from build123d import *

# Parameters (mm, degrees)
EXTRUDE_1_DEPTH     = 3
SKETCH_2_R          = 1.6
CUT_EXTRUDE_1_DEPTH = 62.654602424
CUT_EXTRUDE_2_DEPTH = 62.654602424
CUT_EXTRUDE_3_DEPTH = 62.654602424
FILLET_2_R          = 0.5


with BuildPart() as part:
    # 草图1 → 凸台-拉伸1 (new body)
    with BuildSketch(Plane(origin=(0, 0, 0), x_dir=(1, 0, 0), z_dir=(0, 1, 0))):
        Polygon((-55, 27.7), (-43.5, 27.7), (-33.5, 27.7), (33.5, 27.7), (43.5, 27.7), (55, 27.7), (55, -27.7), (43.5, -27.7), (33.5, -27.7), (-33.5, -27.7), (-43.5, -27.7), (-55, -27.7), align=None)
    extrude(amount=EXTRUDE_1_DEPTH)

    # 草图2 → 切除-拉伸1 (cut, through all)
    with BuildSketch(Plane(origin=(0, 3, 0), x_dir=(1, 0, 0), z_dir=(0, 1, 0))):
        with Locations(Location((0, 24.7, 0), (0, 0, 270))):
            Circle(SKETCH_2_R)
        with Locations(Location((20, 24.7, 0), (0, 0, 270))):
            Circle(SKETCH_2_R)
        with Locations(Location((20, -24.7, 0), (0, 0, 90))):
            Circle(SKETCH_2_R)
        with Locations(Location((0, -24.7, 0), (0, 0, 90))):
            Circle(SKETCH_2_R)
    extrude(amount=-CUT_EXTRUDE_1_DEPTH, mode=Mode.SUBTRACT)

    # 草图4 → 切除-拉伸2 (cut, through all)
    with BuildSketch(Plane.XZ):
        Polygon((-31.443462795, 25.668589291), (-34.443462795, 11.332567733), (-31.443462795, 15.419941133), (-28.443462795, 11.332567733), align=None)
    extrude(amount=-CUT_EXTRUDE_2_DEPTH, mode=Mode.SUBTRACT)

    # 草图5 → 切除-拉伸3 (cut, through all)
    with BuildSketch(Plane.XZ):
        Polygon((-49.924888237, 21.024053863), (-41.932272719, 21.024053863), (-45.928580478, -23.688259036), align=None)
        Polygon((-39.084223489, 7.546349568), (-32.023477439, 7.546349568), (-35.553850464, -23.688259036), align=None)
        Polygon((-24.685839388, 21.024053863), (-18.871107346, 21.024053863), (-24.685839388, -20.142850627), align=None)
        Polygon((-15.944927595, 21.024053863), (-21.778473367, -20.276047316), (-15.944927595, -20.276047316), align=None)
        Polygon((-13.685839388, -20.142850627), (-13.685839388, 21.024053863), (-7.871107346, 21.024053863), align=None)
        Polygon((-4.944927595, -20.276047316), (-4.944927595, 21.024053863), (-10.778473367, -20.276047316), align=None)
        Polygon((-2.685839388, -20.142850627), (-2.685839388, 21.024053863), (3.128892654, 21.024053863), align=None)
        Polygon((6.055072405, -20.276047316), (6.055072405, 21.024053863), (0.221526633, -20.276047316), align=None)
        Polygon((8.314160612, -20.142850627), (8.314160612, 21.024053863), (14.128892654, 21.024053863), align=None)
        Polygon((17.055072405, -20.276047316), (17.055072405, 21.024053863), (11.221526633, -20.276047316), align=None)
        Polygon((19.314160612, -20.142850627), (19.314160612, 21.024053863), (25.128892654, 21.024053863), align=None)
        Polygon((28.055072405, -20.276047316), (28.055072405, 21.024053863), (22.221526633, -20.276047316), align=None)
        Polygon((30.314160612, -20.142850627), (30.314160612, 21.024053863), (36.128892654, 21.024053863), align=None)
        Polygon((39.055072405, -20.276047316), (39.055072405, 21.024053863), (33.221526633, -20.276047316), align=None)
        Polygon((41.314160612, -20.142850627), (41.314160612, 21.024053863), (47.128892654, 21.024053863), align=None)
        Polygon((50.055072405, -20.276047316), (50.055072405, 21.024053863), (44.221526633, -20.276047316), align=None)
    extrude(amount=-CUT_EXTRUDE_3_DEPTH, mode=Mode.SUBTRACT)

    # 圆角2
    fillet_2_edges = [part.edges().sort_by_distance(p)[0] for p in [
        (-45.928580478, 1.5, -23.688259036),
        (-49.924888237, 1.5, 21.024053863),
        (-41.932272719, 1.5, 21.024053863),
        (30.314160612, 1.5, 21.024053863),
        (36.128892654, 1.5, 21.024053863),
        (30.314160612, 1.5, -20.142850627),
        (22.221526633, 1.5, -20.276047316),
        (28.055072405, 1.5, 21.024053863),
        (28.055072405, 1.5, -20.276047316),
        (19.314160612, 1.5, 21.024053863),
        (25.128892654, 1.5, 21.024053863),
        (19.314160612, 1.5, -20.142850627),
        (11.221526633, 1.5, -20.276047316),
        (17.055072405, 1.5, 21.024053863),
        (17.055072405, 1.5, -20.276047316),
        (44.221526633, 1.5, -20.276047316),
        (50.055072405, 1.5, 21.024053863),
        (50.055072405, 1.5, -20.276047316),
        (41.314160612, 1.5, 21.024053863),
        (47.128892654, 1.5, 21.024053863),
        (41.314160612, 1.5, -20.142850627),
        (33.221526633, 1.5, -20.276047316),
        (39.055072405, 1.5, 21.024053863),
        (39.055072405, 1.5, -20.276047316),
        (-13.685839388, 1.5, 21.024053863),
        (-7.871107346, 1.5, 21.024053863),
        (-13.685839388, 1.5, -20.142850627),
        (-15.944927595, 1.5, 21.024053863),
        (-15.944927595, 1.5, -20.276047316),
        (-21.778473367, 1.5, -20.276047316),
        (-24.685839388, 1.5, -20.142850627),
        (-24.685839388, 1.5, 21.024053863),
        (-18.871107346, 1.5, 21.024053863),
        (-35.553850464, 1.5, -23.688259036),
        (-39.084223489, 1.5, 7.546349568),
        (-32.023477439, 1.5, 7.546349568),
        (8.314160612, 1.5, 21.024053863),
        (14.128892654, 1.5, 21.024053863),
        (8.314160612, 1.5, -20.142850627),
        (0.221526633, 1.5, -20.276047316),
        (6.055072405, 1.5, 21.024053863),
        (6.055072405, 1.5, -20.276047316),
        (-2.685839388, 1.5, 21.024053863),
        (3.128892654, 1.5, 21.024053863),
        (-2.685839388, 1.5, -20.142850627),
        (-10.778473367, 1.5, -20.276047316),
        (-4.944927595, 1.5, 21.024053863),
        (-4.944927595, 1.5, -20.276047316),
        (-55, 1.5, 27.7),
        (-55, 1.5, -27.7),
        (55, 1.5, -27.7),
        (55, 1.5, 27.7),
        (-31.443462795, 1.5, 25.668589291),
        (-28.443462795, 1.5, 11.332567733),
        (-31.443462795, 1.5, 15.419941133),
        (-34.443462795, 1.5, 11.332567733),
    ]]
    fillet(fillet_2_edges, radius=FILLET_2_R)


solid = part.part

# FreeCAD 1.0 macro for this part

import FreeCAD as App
import Part
import Sketcher

V = App.Vector
Q = App.Units.Quantity


def edges_at(feature, points):
    """Names of the edges that pass closest to the given points."""
    edges = feature.Shape.Edges
    near = lambda p: min(range(len(edges)), key=lambda i: edges[i].distToShape(Part.Vertex(*p))[0])
    return sorted({f"Edge{near(p) + 1}" for p in points})


def add_polygon(sketch, points):
    """Adds a closed chain of lines whose ends are joined by coincident constraints."""
    first, n = sketch.GeometryCount, len(points)
    for a, b in zip(points, points[1:] + points[:1]):
        sketch.addGeometry(Part.LineSegment(App.Vector(*a, 0), App.Vector(*b, 0)), False)
    for i in range(n):
        sketch.addConstraint(Sketcher.Constraint("Coincident", first + i, 2, first + (i + 1) % n, 1))

doc = App.newDocument("Part")
body = doc.addObject("PartDesign::Body", "Body")

# Sketch on XZ plane
sketch1 = body.newObject("Sketcher::SketchObject", "Sketch")
sketch1.AttachmentSupport = (doc.getObject("XZ_Plane"), [""])
sketch1.MapMode = "FlatFace"
add_polygon(sketch1, [(55, -27.7), (-55, -27.7), (-55, 27.7), (55, 27.7)])  # lines 0-3
sketch1.addConstraint([
    Sketcher.Constraint("Horizontal", 0),
    Sketcher.Constraint("Vertical", 1),
    Sketcher.Constraint("Horizontal", 2),
    Sketcher.Constraint("Vertical", 3),
    Sketcher.Constraint("Symmetric", 0, 2, 2, 2, -1, 1),
    Sketcher.Constraint("DistanceX", 0, 2, 0, 1, Q("110 mm")),
    Sketcher.Constraint("DistanceY", 1, 1, 1, 2, Q("55.4 mm")),
])
pad1 = body.newObject("PartDesign::Pad", "Pad")
pad1.Profile = sketch1
pad1.Length = 3
pad1.Reversed = True

# Sketch on XZ plane
sketch2 = body.newObject("Sketcher::SketchObject", "Sketch001")
sketch2.AttachmentSupport = (doc.getObject("XZ_Plane"), [""])
sketch2.MapMode = "FlatFace"
sketch2.AttachmentOffset = App.Placement(V(0, 0, -3), App.Rotation())
sketch2.addGeometry([
    Part.Circle(V(0, -24.7, 0), V(0, 0, 1), 1.6),
    Part.Circle(V(20, -24.7, 0), V(0, 0, 1), 1.6),
    Part.Circle(V(20, 24.7, 0), V(0, 0, 1), 1.6),
    Part.Circle(V(0, 24.7, 0), V(0, 0, 1), 1.6),
], False)
sketch2.addConstraint([
    Sketcher.Constraint("Equal", 0, 1),
    Sketcher.Constraint("Equal", 1, 2),
    Sketcher.Constraint("Equal", 2, 3),
    Sketcher.Constraint("Symmetric", 0, 3, 3, 3, -1, 1),
    Sketcher.Constraint("Symmetric", 1, 3, 2, 3, -1),
    Sketcher.Constraint("PointOnObject", 0, 3, -2),
    Sketcher.Constraint("Horizontal", 0, 3, 1, 3),
    Sketcher.Constraint("Diameter", 0, Q("3.2 mm")),
    Sketcher.Constraint("DistanceX", -1, 1, 1, 3, Q("20 mm")),
    Sketcher.Constraint("DistanceY", 0, 3, -1, 1, Q("24.7 mm")),
])
pocket1 = body.newObject("PartDesign::Pocket", "Pocket")
pocket1.Profile = sketch2
pocket1.Type = "ThroughAll"
pocket1.Reversed = True

# Sketch on XZ plane
sketch3 = body.newObject("Sketcher::SketchObject", "Sketch002")
sketch3.AttachmentSupport = (doc.getObject("XZ_Plane"), [""])
sketch3.MapMode = "FlatFace"
add_polygon(sketch3, [(-31.443463, 25.668589), (-34.443463, 11.332568), (-31.443463, 15.419941), (-28.443463, 11.332568)])  # lines 0-3
sketch3.addConstraint([
    Sketcher.Constraint("Horizontal", 0, 2, 2, 2),
    Sketcher.Constraint("Vertical", 1, 2, 3, 2),
    Sketcher.Constraint("Equal", 1, 2),
    Sketcher.Constraint("DistanceX", 0, 2, 1, 2, Q("3 mm")),
    Sketcher.Constraint("Distance", 1, Q("5.07017 mm")),
    Sketcher.Constraint("DistanceY", -1, 1, 1, 2, Q("15.419941 mm")),
    Sketcher.Constraint("DistanceY", -1, 1, 3, 2, Q("25.668589 mm")),
    Sketcher.Constraint("DistanceX", 0, 2, -1, 1, Q("34.443463 mm")),
])
pocket2 = body.newObject("PartDesign::Pocket", "Pocket001")
pocket2.Profile = sketch3
pocket2.Type = "ThroughAll"

# Sketch on XZ plane
sketch4 = body.newObject("Sketcher::SketchObject", "Sketch003")
sketch4.AttachmentSupport = (doc.getObject("XZ_Plane"), [""])
sketch4.MapMode = "FlatFace"
add_polygon(sketch4, [(-41.932273, 21.024054), (-49.924888, 21.024054), (-45.92858, -23.688259)])  # lines 0-2
add_polygon(sketch4, [(-32.023477, 7.54635), (-39.084223, 7.54635), (-35.55385, -23.688259)])  # lines 3-5
add_polygon(sketch4, [(-18.871107, 21.024054), (-24.685839, 21.024054), (-24.685839, -20.142851)])  # lines 6-8
add_polygon(sketch4, [(-15.944928, 21.024054), (-21.778473, -20.276047), (-15.944928, -20.276047)])  # lines 9-11
add_polygon(sketch4, [(-13.685839, 21.024054), (-13.685839, -20.142851), (-7.871107, 21.024054)])  # lines 12-14
add_polygon(sketch4, [(-4.944928, -20.276047), (-4.944928, 21.024054), (-10.778473, -20.276047)])  # lines 15-17
add_polygon(sketch4, [(-2.685839, 21.024054), (-2.685839, -20.142851), (3.128893, 21.024054)])  # lines 18-20
add_polygon(sketch4, [(6.055072, -20.276047), (6.055072, 21.024054), (0.221527, -20.276047)])  # lines 21-23
add_polygon(sketch4, [(8.314161, 21.024054), (8.314161, -20.142851), (14.128893, 21.024054)])  # lines 24-26
add_polygon(sketch4, [(17.055072, -20.276047), (17.055072, 21.024054), (11.221527, -20.276047)])  # lines 27-29
add_polygon(sketch4, [(19.314161, 21.024054), (19.314161, -20.142851), (25.128893, 21.024054)])  # lines 30-32
add_polygon(sketch4, [(28.055072, -20.276047), (28.055072, 21.024054), (22.221527, -20.276047)])  # lines 33-35
add_polygon(sketch4, [(30.314161, 21.024054), (30.314161, -20.142851), (36.128893, 21.024054)])  # lines 36-38
add_polygon(sketch4, [(39.055072, -20.276047), (39.055072, 21.024054), (33.221527, -20.276047)])  # lines 39-41
add_polygon(sketch4, [(41.314161, 21.024054), (41.314161, -20.142851), (47.128893, 21.024054)])  # lines 42-44
add_polygon(sketch4, [(50.055072, -20.276047), (50.055072, 21.024054), (44.221527, -20.276047)])  # lines 45-47
sketch4.addConstraint([
    Sketcher.Constraint("Horizontal", 0),
    Sketcher.Constraint("Horizontal", 3),
    Sketcher.Constraint("Horizontal", 6),
    Sketcher.Constraint("Vertical", 7),
    Sketcher.Constraint("Horizontal", 10),
    Sketcher.Constraint("Vertical", 11),
    Sketcher.Constraint("Vertical", 12),
    Sketcher.Constraint("Horizontal", 14),
    Sketcher.Constraint("Vertical", 15),
    Sketcher.Constraint("Horizontal", 17),
    Sketcher.Constraint("Vertical", 18),
    Sketcher.Constraint("Horizontal", 20),
    Sketcher.Constraint("Vertical", 21),
    Sketcher.Constraint("Horizontal", 23),
    Sketcher.Constraint("Vertical", 24),
    Sketcher.Constraint("Horizontal", 26),
    Sketcher.Constraint("Vertical", 27),
    Sketcher.Constraint("Horizontal", 29),
    Sketcher.Constraint("Vertical", 30),
    Sketcher.Constraint("Horizontal", 32),
    Sketcher.Constraint("Vertical", 33),
    Sketcher.Constraint("Horizontal", 35),
    Sketcher.Constraint("Vertical", 36),
    Sketcher.Constraint("Horizontal", 38),
    Sketcher.Constraint("Vertical", 39),
    Sketcher.Constraint("Horizontal", 41),
    Sketcher.Constraint("Vertical", 42),
    Sketcher.Constraint("Horizontal", 44),
    Sketcher.Constraint("Vertical", 45),
    Sketcher.Constraint("Horizontal", 47),
    Sketcher.Constraint("Parallel", 8, 9),
    Sketcher.Constraint("Parallel", 9, 13),
    Sketcher.Constraint("Parallel", 13, 16),
    Sketcher.Constraint("Parallel", 16, 19),
    Sketcher.Constraint("Parallel", 19, 22),
    Sketcher.Constraint("Parallel", 22, 25),
    Sketcher.Constraint("Parallel", 25, 28),
    Sketcher.Constraint("Parallel", 28, 31),
    Sketcher.Constraint("Parallel", 31, 34),
    Sketcher.Constraint("Parallel", 34, 37),
    Sketcher.Constraint("Parallel", 37, 40),
    Sketcher.Constraint("Parallel", 40, 43),
    Sketcher.Constraint("Parallel", 43, 46),
    Sketcher.Constraint("Horizontal", 1, 2, 4, 2),
    Sketcher.Constraint("Horizontal", 2, 2, 6, 2),
    Sketcher.Constraint("Horizontal", 8, 2, 11, 2),
    Sketcher.Constraint("Horizontal", 7, 2, 12, 2),
    Sketcher.Constraint("Horizontal", 11, 2, 13, 2),
    Sketcher.Constraint("Horizontal", 14, 2, 15, 2),
    Sketcher.Constraint("Horizontal", 10, 2, 16, 2),
    Sketcher.Constraint("Horizontal", 12, 2, 18, 2),
    Sketcher.Constraint("Horizontal", 15, 2, 19, 2),
    Sketcher.Constraint("Horizontal", 20, 2, 21, 2),
    Sketcher.Constraint("Horizontal", 17, 2, 22, 2),
    Sketcher.Constraint("Horizontal", 18, 2, 24, 2),
    Sketcher.Constraint("Horizontal", 21, 2, 25, 2),
    Sketcher.Constraint("Horizontal", 26, 2, 27, 2),
    Sketcher.Constraint("Horizontal", 23, 2, 28, 2),
    Sketcher.Constraint("Horizontal", 24, 2, 30, 2),
    Sketcher.Constraint("Horizontal", 27, 2, 31, 2),
    Sketcher.Constraint("Horizontal", 32, 2, 33, 2),
    Sketcher.Constraint("Horizontal", 29, 2, 34, 2),
    Sketcher.Constraint("Horizontal", 30, 2, 36, 2),
    Sketcher.Constraint("Horizontal", 33, 2, 37, 2),
    Sketcher.Constraint("Horizontal", 38, 2, 39, 2),
    Sketcher.Constraint("Horizontal", 35, 2, 40, 2),
    Sketcher.Constraint("Horizontal", 36, 2, 42, 2),
    Sketcher.Constraint("Horizontal", 39, 2, 43, 2),
    Sketcher.Constraint("Horizontal", 44, 2, 45, 2),
    Sketcher.Constraint("Horizontal", 41, 2, 46, 2),
    Sketcher.Constraint("Equal", 1, 2),
    Sketcher.Constraint("Equal", 4, 5),
    Sketcher.Constraint("DistanceX", 7, 2, 12, 2, Q("11 mm")),
    Sketcher.Constraint("DistanceX", 11, 2, 15, 2, Q("11 mm")),
    Sketcher.Constraint("DistanceX", 12, 2, 18, 2, Q("11 mm")),
    Sketcher.Constraint("DistanceX", 15, 2, 21, 2, Q("11 mm")),
    Sketcher.Constraint("DistanceX", 18, 2, 24, 2, Q("11 mm")),
    Sketcher.Constraint("DistanceX", 21, 2, 27, 2, Q("11 mm")),
    Sketcher.Constraint("DistanceX", 24, 2, 30, 2, Q("11 mm")),
    Sketcher.Constraint("DistanceX", 27, 2, 33, 2, Q("11 mm")),
    Sketcher.Constraint("DistanceX", 30, 2, 36, 2, Q("11 mm")),
    Sketcher.Constraint("DistanceX", 33, 2, 39, 2, Q("11 mm")),
    Sketcher.Constraint("DistanceX", 36, 2, 42, 2, Q("11 mm")),
    Sketcher.Constraint("DistanceX", 39, 2, 45, 2, Q("11 mm")),
    Sketcher.Constraint("DistanceY", 11, 1, 11, 2, Q("41.300101 mm")),
    Sketcher.Constraint("DistanceY", 7, 2, 5, 2, Q("27.6892 mm")),
    Sketcher.Constraint("Distance", 1, Q("44.890549 mm")),
    Sketcher.Constraint("Distance", 4, Q("31.43349 mm")),
    Sketcher.Constraint("DistanceX", 0, 2, 0, 1, Q("7.992616 mm")),
    Sketcher.Constraint("DistanceX", 3, 2, 3, 1, Q("7.060746 mm")),
    Sketcher.Constraint("DistanceX", 6, 2, 6, 1, Q("5.814732 mm")),
    Sketcher.Constraint("DistanceX", 0, 2, -1, 1, Q("49.924888 mm")),
    Sketcher.Constraint("DistanceY", 1, 2, -1, 1, Q("23.688259 mm")),
    Sketcher.Constraint("DistanceX", 4, 2, -1, 1, Q("35.55385 mm")),
    Sketcher.Constraint("DistanceX", 6, 2, -1, 1, Q("24.685839 mm")),
    Sketcher.Constraint("DistanceX", 3, 2, 9, 2, Q("17.30575 mm")),
])
pocket3 = body.newObject("PartDesign::Pocket", "Pocket002")
pocket3.Profile = sketch4
pocket3.Type = "ThroughAll"
doc.recompute()

fillet = body.newObject("PartDesign::Fillet", "Fillet")
fillet.Base = (pocket3, edges_at(pocket3, [
    (-45.929, 1.5, -23.688),
    (-49.925, 1.5, 21.024),
    (-41.932, 1.5, 21.024),
    (30.314, 1.5, 21.024),
    (36.129, 1.5, 21.024),
    (30.314, 1.5, -20.143),
    (22.222, 1.5, -20.276),
    (28.055, 1.5, 21.024),
    (28.055, 1.5, -20.276),
    (19.314, 1.5, 21.024),
    (25.129, 1.5, 21.024),
    (19.314, 1.5, -20.143),
    (11.222, 1.5, -20.276),
    (17.055, 1.5, 21.024),
    (17.055, 1.5, -20.276),
    (44.222, 1.5, -20.276),
    (50.055, 1.5, 21.024),
    (50.055, 1.5, -20.276),
    (41.314, 1.5, 21.024),
    (47.129, 1.5, 21.024),
    (41.314, 1.5, -20.143),
    (33.222, 1.5, -20.276),
    (39.055, 1.5, 21.024),
    (39.055, 1.5, -20.276),
    (-13.686, 1.5, 21.024),
    (-7.871, 1.5, 21.024),
    (-13.686, 1.5, -20.143),
    (-15.945, 1.5, 21.024),
    (-15.945, 1.5, -20.276),
    (-21.778, 1.5, -20.276),
    (-24.686, 1.5, -20.143),
    (-24.686, 1.5, 21.024),
    (-18.871, 1.5, 21.024),
    (-35.554, 1.5, -23.688),
    (-39.084, 1.5, 7.546),
    (-32.023, 1.5, 7.546),
    (8.314, 1.5, 21.024),
    (14.129, 1.5, 21.024),
    (8.314, 1.5, -20.143),
    (0.222, 1.5, -20.276),
    (6.055, 1.5, 21.024),
    (6.055, 1.5, -20.276),
    (-2.686, 1.5, 21.024),
    (3.129, 1.5, 21.024),
    (-2.686, 1.5, -20.143),
    (-10.778, 1.5, -20.276),
    (-4.945, 1.5, 21.024),
    (-4.945, 1.5, -20.276),
    (-55, 1.5, 27.7),
    (-55, 1.5, -27.7),
    (55, 1.5, -27.7),
    (55, 1.5, 27.7),
    (-31.443, 1.5, 25.669),
    (-28.443, 1.5, 11.333),
    (-31.443, 1.5, 15.42),
    (-34.443, 1.5, 11.333),
]))
fillet.Radius = 0.5

doc.recompute()
